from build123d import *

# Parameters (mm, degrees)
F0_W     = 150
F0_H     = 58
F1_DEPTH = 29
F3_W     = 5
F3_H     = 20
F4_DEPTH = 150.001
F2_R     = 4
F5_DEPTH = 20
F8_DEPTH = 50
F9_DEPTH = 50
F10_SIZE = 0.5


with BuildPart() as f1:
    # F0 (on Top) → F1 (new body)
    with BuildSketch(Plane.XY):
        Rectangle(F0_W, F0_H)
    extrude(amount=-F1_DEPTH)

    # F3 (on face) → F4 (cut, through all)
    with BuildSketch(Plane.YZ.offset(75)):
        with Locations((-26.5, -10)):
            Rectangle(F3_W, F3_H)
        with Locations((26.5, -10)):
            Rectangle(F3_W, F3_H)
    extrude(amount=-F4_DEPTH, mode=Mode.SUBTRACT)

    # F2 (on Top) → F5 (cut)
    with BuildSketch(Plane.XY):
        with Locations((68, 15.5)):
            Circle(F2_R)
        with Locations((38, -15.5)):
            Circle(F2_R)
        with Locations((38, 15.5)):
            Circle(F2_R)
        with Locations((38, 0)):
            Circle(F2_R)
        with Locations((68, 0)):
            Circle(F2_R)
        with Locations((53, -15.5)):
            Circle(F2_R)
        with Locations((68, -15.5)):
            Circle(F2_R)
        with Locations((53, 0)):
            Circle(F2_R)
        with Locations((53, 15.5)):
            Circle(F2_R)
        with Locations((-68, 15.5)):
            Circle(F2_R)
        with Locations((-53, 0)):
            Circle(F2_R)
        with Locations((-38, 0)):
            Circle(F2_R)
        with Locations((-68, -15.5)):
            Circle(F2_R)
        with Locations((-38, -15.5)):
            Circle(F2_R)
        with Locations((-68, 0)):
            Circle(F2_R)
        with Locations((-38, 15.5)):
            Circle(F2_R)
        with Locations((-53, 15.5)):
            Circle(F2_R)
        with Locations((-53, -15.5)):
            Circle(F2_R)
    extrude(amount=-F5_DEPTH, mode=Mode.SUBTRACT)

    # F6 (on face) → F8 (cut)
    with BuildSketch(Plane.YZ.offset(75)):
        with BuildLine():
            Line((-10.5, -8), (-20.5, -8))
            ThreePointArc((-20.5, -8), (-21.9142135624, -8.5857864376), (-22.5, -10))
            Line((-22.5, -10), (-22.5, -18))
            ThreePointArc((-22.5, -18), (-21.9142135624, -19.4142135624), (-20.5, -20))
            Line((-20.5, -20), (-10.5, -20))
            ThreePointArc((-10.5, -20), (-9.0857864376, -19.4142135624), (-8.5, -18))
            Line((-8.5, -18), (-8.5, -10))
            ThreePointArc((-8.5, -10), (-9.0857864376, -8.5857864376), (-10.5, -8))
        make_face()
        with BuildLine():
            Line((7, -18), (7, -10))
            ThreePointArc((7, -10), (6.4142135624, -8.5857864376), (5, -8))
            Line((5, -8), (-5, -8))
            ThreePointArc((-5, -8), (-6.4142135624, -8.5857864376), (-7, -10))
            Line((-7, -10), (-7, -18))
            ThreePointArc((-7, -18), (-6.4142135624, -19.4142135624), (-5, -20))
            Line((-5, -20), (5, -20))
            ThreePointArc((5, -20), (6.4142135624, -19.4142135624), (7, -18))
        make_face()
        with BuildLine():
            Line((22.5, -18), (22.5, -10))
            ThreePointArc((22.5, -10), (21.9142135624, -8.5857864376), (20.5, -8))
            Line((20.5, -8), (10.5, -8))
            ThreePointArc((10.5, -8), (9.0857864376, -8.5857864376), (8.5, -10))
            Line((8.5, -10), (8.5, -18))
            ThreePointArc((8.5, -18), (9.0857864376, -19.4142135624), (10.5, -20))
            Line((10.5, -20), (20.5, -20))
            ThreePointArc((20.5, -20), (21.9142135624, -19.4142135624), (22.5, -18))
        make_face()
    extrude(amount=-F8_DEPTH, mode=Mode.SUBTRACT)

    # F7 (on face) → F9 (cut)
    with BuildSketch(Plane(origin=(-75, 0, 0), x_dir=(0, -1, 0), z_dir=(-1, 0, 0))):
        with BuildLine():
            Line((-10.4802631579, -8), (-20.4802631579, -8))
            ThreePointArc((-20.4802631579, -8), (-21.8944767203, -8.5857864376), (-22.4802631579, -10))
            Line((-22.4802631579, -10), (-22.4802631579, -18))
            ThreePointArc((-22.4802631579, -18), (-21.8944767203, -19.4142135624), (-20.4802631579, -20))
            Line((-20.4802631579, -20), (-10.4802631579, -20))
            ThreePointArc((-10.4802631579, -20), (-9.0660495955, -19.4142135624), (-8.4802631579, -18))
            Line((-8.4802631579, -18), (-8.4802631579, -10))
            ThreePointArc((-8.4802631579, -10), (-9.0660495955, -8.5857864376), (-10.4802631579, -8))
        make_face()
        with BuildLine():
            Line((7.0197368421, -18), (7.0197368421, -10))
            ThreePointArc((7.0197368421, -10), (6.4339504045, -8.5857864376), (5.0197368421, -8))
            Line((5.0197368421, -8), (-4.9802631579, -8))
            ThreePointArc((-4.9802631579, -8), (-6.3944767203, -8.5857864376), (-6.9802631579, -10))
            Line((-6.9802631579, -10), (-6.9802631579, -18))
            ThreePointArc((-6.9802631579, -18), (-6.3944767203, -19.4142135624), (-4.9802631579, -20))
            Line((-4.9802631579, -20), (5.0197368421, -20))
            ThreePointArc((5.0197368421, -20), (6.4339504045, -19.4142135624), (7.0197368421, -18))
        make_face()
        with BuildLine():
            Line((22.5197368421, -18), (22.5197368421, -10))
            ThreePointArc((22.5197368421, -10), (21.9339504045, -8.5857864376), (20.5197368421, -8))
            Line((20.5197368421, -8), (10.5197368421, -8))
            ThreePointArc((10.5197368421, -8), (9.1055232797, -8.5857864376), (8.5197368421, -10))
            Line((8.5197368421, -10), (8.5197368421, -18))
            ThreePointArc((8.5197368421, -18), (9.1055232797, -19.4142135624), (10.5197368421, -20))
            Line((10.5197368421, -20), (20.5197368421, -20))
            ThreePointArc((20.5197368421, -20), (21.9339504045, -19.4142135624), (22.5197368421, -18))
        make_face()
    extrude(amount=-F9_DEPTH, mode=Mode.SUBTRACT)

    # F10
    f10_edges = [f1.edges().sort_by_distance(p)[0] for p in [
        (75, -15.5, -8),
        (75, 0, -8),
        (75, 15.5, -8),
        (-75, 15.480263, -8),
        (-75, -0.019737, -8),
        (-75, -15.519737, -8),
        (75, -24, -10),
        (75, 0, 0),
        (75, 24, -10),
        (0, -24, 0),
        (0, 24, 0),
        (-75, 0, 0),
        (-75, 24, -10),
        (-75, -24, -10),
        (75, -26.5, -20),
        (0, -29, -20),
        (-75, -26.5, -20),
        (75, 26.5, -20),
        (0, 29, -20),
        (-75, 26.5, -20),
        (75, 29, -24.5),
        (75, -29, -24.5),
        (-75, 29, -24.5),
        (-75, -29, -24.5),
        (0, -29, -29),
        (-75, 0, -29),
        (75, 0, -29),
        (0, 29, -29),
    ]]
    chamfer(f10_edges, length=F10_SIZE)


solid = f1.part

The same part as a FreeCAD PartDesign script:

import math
import FreeCAD as App
import Part
import Sketcher
from FreeCAD import Vector


def edges_at(feature, points):
    """Names of the edges that pass closest to the given points."""
    edges = feature.Shape.Edges
    near = lambda p: min(range(len(edges)), key=lambda i: edges[i].distToShape(Part.Vertex(*p))[0])
    return sorted({f"Edge{near(p) + 1}" for p in points})


def add_polygon(sketch, points):
    """Adds a closed chain of lines whose ends are joined by coincident constraints."""
    first, n = sketch.GeometryCount, len(points)
    for a, b in zip(points, points[1:] + points[:1]):
        sketch.addGeometry(Part.LineSegment(App.Vector(*a, 0), App.Vector(*b, 0)), False)
    for i in range(n):
        sketch.addConstraint(Sketcher.Constraint("Coincident", first + i, 2, first + (i + 1) % n, 1))

doc = App.newDocument("Part")
params = doc.addObject("Spreadsheet::Sheet", "Params")
for row, (alias, value) in enumerate([
    ("sketch1_width", "150 mm"),
    ("sketch1_height", "58 mm"),
    ("pad1_length", "29 mm"),
    ("sketch2_width", "5 mm"),
    ("sketch2_height", "20 mm"),
    ("sketch3_diameter", "8 mm"),
    ("pocket2_length", "20 mm"),
    ("sketch4_radius", "2 mm"),
    ("sketch4_width", "10 mm"),
    ("sketch4_height", "8 mm"),
    ("pocket3_length", "50 mm"),
    ("sketch5_radius", "2 mm"),
    ("sketch5_width", "10 mm"),
    ("sketch5_height", "8 mm"),
    ("pocket4_length", "50 mm"),
    ("chamfer_size", "0.5 mm"),
], start=1):
    params.set(f"A{row}", alias)
    params.set(f"B{row}", "=" + value)
    params.setAlias(f"B{row}", alias)

body = doc.addObject("PartDesign::Body", "Body")

# Sketch on XY plane
sketch1 = body.newObject("Sketcher::SketchObject", "Sketch")
sketch1.AttachmentSupport = (doc.getObject("XY_Plane"), [""])
sketch1.MapMode = "FlatFace"
add_polygon(sketch1, [(-75, 29), (-75, -29), (75, -29), (75, 29)])  # lines 0-3
sketch1.addConstraint(Sketcher.Constraint("Vertical", 0))
sketch1.addConstraint(Sketcher.Constraint("Horizontal", 1))
sketch1.addConstraint(Sketcher.Constraint("Vertical", 2))
sketch1.addConstraint(Sketcher.Constraint("Horizontal", 3))
sketch1.addConstraint(Sketcher.Constraint("Symmetric", 0, 2, 2, 2, -1, 1))
sketch1.addConstraint(Sketcher.Constraint("DistanceX", 1, 1, 1, 2, 150.0))
sketch1.addConstraint(Sketcher.Constraint("DistanceY", 0, 2, 0, 1, 58.0))
sketch1.setExpression("Constraints[9]", "Params.sketch1_width")
sketch1.setExpression("Constraints[10]", "Params.sketch1_height")
pad1 = body.newObject("PartDesign::Pad", "Pad")
pad1.Profile = sketch1
pad1.setExpression("Length", "Params.pad1_length")
pad1.Reversed = True

# Sketch on YZ plane
sketch2 = body.newObject("Sketcher::SketchObject", "Sketch001")
sketch2.AttachmentSupport = (doc.getObject("YZ_Plane"), [""])
sketch2.MapMode = "FlatFace"
sketch2.AttachmentOffset = App.Placement(Vector(0, 0, 75), App.Rotation())
add_polygon(sketch2, [(-29, 0), (-29, -20), (-24, -20), (-24, 0)])  # lines 0-3
add_polygon(sketch2, [(24, 0), (24, -20), (29, -20), (29, 0)])  # lines 4-7
sketch2.addConstraint(Sketcher.Constraint("Vertical", 0))
sketch2.addConstraint(Sketcher.Constraint("Horizontal", 1))
sketch2.addConstraint(Sketcher.Constraint("Vertical", 2))
sketch2.addConstraint(Sketcher.Constraint("Horizontal", 3))
sketch2.addConstraint(Sketcher.Constraint("Vertical", 4))
sketch2.addConstraint(Sketcher.Constraint("Horizontal", 5))
sketch2.addConstraint(Sketcher.Constraint("Vertical", 6))
sketch2.addConstraint(Sketcher.Constraint("Horizontal", 7))
sketch2.addConstraint(Sketcher.Constraint("Symmetric", 3, 2, 6, 2, -1, 1))
sketch2.addConstraint(Sketcher.Constraint("Symmetric", 1, 2, 4, 2, -2))
sketch2.addConstraint(Sketcher.Constraint("PointOnObject", 2, 2, -1))
sketch2.addConstraint(Sketcher.Constraint("DistanceX", 1, 1, 1, 2, 5.0))
sketch2.addConstraint(Sketcher.Constraint("DistanceY", 0, 2, 0, 1, 20.0))
sketch2.addConstraint(Sketcher.Constraint("DistanceX", 0, 2, -1, 1, 29.0))
sketch2.setExpression("Constraints[19]", "Params.sketch2_width")
sketch2.setExpression("Constraints[20]", "Params.sketch2_height")
pocket1 = body.newObject("PartDesign::Pocket", "Pocket")
pocket1.Profile = sketch2
pocket1.Type = "ThroughAll"

# Sketch on XY plane
sketch3 = body.newObject("Sketcher::SketchObject", "Sketch002")
sketch3.AttachmentSupport = (doc.getObject("XY_Plane"), [""])
sketch3.MapMode = "FlatFace"
sketch3.addGeometry(Part.Circle(Vector(68, 15.5, 0), Vector(0, 0, 1), 4), False)
sketch3.addGeometry(Part.Circle(Vector(38, -15.5, 0), Vector(0, 0, 1), 4), False)
sketch3.addGeometry(Part.Circle(Vector(38, 15.5, 0), Vector(0, 0, 1), 4), False)
sketch3.addGeometry(Part.Circle(Vector(38, 0, 0), Vector(0, 0, 1), 4), False)
sketch3.addGeometry(Part.Circle(Vector(68, 0, 0), Vector(0, 0, 1), 4), False)
sketch3.addGeometry(Part.Circle(Vector(53, -15.5, 0), Vector(0, 0, 1), 4), False)
sketch3.addGeometry(Part.Circle(Vector(68, -15.5, 0), Vector(0, 0, 1), 4), False)
sketch3.addGeometry(Part.Circle(Vector(53, 0, 0), Vector(0, 0, 1), 4), False)
sketch3.addGeometry(Part.Circle(Vector(53, 15.5, 0), Vector(0, 0, 1), 4), False)
sketch3.addGeometry(Part.Circle(Vector(-68, 15.5, 0), Vector(0, 0, 1), 4), False)
sketch3.addGeometry(Part.Circle(Vector(-53, 0, 0), Vector(0, 0, 1), 4), False)
sketch3.addGeometry(Part.Circle(Vector(-38, 0, 0), Vector(0, 0, 1), 4), False)
sketch3.addGeometry(Part.Circle(Vector(-68, -15.5, 0), Vector(0, 0, 1), 4), False)
sketch3.addGeometry(Part.Circle(Vector(-38, -15.5, 0), Vector(0, 0, 1), 4), False)
sketch3.addGeometry(Part.Circle(Vector(-68, 0, 0), Vector(0, 0, 1), 4), False)
sketch3.addGeometry(Part.Circle(Vector(-38, 15.5, 0), Vector(0, 0, 1), 4), False)
sketch3.addGeometry(Part.Circle(Vector(-53, 15.5, 0), Vector(0, 0, 1), 4), False)
sketch3.addGeometry(Part.Circle(Vector(-53, -15.5, 0), Vector(0, 0, 1), 4), False)
sketch3.addConstraint(Sketcher.Constraint("Equal", 0, 1))
sketch3.addConstraint(Sketcher.Constraint("Equal", 1, 2))
sketch3.addConstraint(Sketcher.Constraint("Equal", 2, 3))
sketch3.addConstraint(Sketcher.Constraint("Equal", 3, 4))
sketch3.addConstraint(Sketcher.Constraint("Equal", 4, 5))
sketch3.addConstraint(Sketcher.Constraint("Equal", 5, 6))
sketch3.addConstraint(Sketcher.Constraint("Equal", 6, 7))
sketch3.addConstraint(Sketcher.Constraint("Equal", 7, 8))
sketch3.addConstraint(Sketcher.Constraint("Equal", 8, 9))
sketch3.addConstraint(Sketcher.Constraint("Equal", 9, 10))
sketch3.addConstraint(Sketcher.Constraint("Equal", 10, 11))
sketch3.addConstraint(Sketcher.Constraint("Equal", 11, 12))
sketch3.addConstraint(Sketcher.Constraint("Equal", 12, 13))
sketch3.addConstraint(Sketcher.Constraint("Equal", 13, 14))
sketch3.addConstraint(Sketcher.Constraint("Equal", 14, 15))
sketch3.addConstraint(Sketcher.Constraint("Equal", 15, 16))
sketch3.addConstraint(Sketcher.Constraint("Equal", 16, 17))
sketch3.addConstraint(Sketcher.Constraint("Symmetric", 6, 3, 9, 3, -1, 1))
sketch3.addConstraint(Sketcher.Constraint("Symmetric", 7, 3, 10, 3, -1, 1))
sketch3.addConstraint(Sketcher.Constraint("Symmetric", 3, 3, 11, 3, -1, 1))
sketch3.addConstraint(Sketcher.Constraint("Symmetric", 0, 3, 12, 3, -1, 1))
sketch3.addConstraint(Sketcher.Constraint("Symmetric", 2, 3, 13, 3, -1, 1))
sketch3.addConstraint(Sketcher.Constraint("Symmetric", 4, 3, 14, 3, -1, 1))
sketch3.addConstraint(Sketcher.Constraint("Symmetric", 1, 3, 15, 3, -1, 1))
sketch3.addConstraint(Sketcher.Constraint("Symmetric", 5, 3, 16, 3, -1, 1))
sketch3.addConstraint(Sketcher.Constraint("Symmetric", 8, 3, 17, 3, -1, 1))
sketch3.addConstraint(Sketcher.Constraint("Symmetric", 0, 3, 9, 3, -2))
sketch3.addConstraint(Sketcher.Constraint("Symmetric", 1, 3, 13, 3, -2))
sketch3.addConstraint(Sketcher.Constraint("Symmetric", 8, 3, 16, 3, -2))
sketch3.addConstraint(Sketcher.Constraint("PointOnObject", 3, 3, -1))
sketch3.addConstraint(Sketcher.Constraint("PointOnObject", 4, 3, -1))
sketch3.addConstraint(Sketcher.Constraint("PointOnObject", 7, 3, -1))
sketch3.addConstraint(Sketcher.Constraint("Horizontal", 0, 3, 2, 3))
sketch3.addConstraint(Sketcher.Constraint("Horizontal", 1, 3, 5, 3))
sketch3.addConstraint(Sketcher.Constraint("Vertical", 2, 3, 3, 3))
sketch3.addConstraint(Sketcher.Constraint("Vertical", 0, 3, 4, 3))
sketch3.addConstraint(Sketcher.Constraint("Vertical", 5, 3, 7, 3))
sketch3.addConstraint(Sketcher.Constraint("Diameter", 0, 8.0))
sketch3.addConstraint(Sketcher.Constraint("DistanceX", -1, 1, 0, 3, 68.0))
sketch3.addConstraint(Sketcher.Constraint("DistanceX", -1, 1, 1, 3, 38.0))
sketch3.addConstraint(Sketcher.Constraint("DistanceX", -1, 1, 5, 3, 53.0))
sketch3.addConstraint(Sketcher.Constraint("DistanceY", 1, 3, 0, 3, 31.0))
sketch3.setExpression("Constraints[37]", "Params.sketch3_diameter")
pocket2 = body.newObject("PartDesign::Pocket", "Pocket001")
pocket2.Profile = sketch3
pocket2.setExpression("Length", "Params.pocket2_length")

# Sketch on YZ plane
sketch4 = body.newObject("Sketcher::SketchObject", "Sketch003")
sketch4.AttachmentSupport = (doc.getObject("YZ_Plane"), [""])
sketch4.MapMode = "FlatFace"
sketch4.AttachmentOffset = App.Placement(Vector(0, 0, 75), App.Rotation())
sketch4.addGeometry(Part.LineSegment(Vector(-10.5, -8, 0), Vector(-20.5, -8, 0)), False)
sketch4.addGeometry(Part.ArcOfCircle(Part.Circle(Vector(-20.5, -10, 0), Vector(0, 0, 1), 2), math.radians(90), math.radians(180)), False)
sketch4.addGeometry(Part.LineSegment(Vector(-22.5, -10, 0), Vector(-22.5, -18, 0)), False)
sketch4.addGeometry(Part.ArcOfCircle(Part.Circle(Vector(-20.5, -18, 0), Vector(0, 0, 1), 2), math.radians(180), math.radians(270)), False)
sketch4.addGeometry(Part.LineSegment(Vector(-20.5, -20, 0), Vector(-10.5, -20, 0)), False)
sketch4.addGeometry(Part.ArcOfCircle(Part.Circle(Vector(-10.5, -18, 0), Vector(0, 0, 1), 2), math.radians(-90), math.radians(0)), False)
sketch4.addGeometry(Part.LineSegment(Vector(-8.5, -18, 0), Vector(-8.5, -10, 0)), False)
sketch4.addGeometry(Part.ArcOfCircle(Part.Circle(Vector(-10.5, -10, 0), Vector(0, 0, 1), 2), math.radians(0), math.radians(90)), False)
sketch4.addGeometry(Part.LineSegment(Vector(7, -18, 0), Vector(7, -10, 0)), False)
sketch4.addGeometry(Part.ArcOfCircle(Part.Circle(Vector(5, -10, 0), Vector(0, 0, 1), 2), math.radians(0), math.radians(90)), False)
sketch4.addGeometry(Part.LineSegment(Vector(5, -8, 0), Vector(-5, -8, 0)), False)
sketch4.addGeometry(Part.ArcOfCircle(Part.Circle(Vector(-5, -10, 0), Vector(0, 0, 1), 2), math.radians(90), math.radians(180)), False)
sketch4.addGeometry(Part.LineSegment(Vector(-7, -10, 0), Vector(-7, -18, 0)), False)
sketch4.addGeometry(Part.ArcOfCircle(Part.Circle(Vector(-5, -18, 0), Vector(0, 0, 1), 2), math.radians(180), math.radians(270)), False)
sketch4.addGeometry(Part.LineSegment(Vector(-5, -20, 0), Vector(5, -20, 0)), False)
sketch4.addGeometry(Part.ArcOfCircle(Part.Circle(Vector(5, -18, 0), Vector(0, 0, 1), 2), math.radians(-90), math.radians(0)), False)
sketch4.addGeometry(Part.LineSegment(Vector(22.5, -18, 0), Vector(22.5, -10, 0)), False)
sketch4.addGeometry(Part.ArcOfCircle(Part.Circle(Vector(20.5, -10, 0), Vector(0, 0, 1), 2), math.radians(0), math.radians(90)), False)
sketch4.addGeometry(Part.LineSegment(Vector(20.5, -8, 0), Vector(10.5, -8, 0)), False)
sketch4.addGeometry(Part.ArcOfCircle(Part.Circle(Vector(10.5, -10, 0), Vector(0, 0, 1), 2), math.radians(90), math.radians(180)), False)
sketch4.addGeometry(Part.LineSegment(Vector(8.5, -10, 0), Vector(8.5, -18, 0)), False)
sketch4.addGeometry(Part.ArcOfCircle(Part.Circle(Vector(10.5, -18, 0), Vector(0, 0, 1), 2), math.radians(180), math.radians(270)), False)
sketch4.addGeometry(Part.LineSegment(Vector(10.5, -20, 0), Vector(20.5, -20, 0)), False)
sketch4.addGeometry(Part.ArcOfCircle(Part.Circle(Vector(20.5, -18, 0), Vector(0, 0, 1), 2), math.radians(-90), math.radians(0)), False)
sketch4.addConstraint(Sketcher.Constraint("Tangent", 0, 2, 1, 1))
sketch4.addConstraint(Sketcher.Constraint("Tangent", 1, 2, 2, 1))
sketch4.addConstraint(Sketcher.Constraint("Tangent", 2, 2, 3, 1))
sketch4.addConstraint(Sketcher.Constraint("Tangent", 3, 2, 4, 1))
sketch4.addConstraint(Sketcher.Constraint("Tangent", 4, 2, 5, 1))
sketch4.addConstraint(Sketcher.Constraint("Tangent", 5, 2, 6, 1))
sketch4.addConstraint(Sketcher.Constraint("Tangent", 6, 2, 7, 1))
sketch4.addConstraint(Sketcher.Constraint("Tangent", 7, 2, 0, 1))
sketch4.addConstraint(Sketcher.Constraint("Tangent", 8, 2, 9, 1))
sketch4.addConstraint(Sketcher.Constraint("Tangent", 9, 2, 10, 1))
sketch4.addConstraint(Sketcher.Constraint("Tangent", 10, 2, 11, 1))
sketch4.addConstraint(Sketcher.Constraint("Tangent", 11, 2, 12, 1))
sketch4.addConstraint(Sketcher.Constraint("Tangent", 12, 2, 13, 1))
sketch4.addConstraint(Sketcher.Constraint("Tangent", 13, 2, 14, 1))
sketch4.addConstraint(Sketcher.Constraint("Tangent", 14, 2, 15, 1))
sketch4.addConstraint(Sketcher.Constraint("Tangent", 15, 2, 8, 1))
sketch4.addConstraint(Sketcher.Constraint("Tangent", 16, 2, 17, 1))
sketch4.addConstraint(Sketcher.Constraint("Tangent", 17, 2, 18, 1))
sketch4.addConstraint(Sketcher.Constraint("Tangent", 18, 2, 19, 1))
sketch4.addConstraint(Sketcher.Constraint("Tangent", 19, 2, 20, 1))
sketch4.addConstraint(Sketcher.Constraint("Tangent", 20, 2, 21, 1))
sketch4.addConstraint(Sketcher.Constraint("Tangent", 21, 2, 22, 1))
sketch4.addConstraint(Sketcher.Constraint("Tangent", 22, 2, 23, 1))
sketch4.addConstraint(Sketcher.Constraint("Tangent", 23, 2, 16, 1))
sketch4.addConstraint(Sketcher.Constraint("Horizontal", 0))
sketch4.addConstraint(Sketcher.Constraint("Vertical", 2))
sketch4.addConstraint(Sketcher.Constraint("Horizontal", 4))
sketch4.addConstraint(Sketcher.Constraint("Vertical", 6))
sketch4.addConstraint(Sketcher.Constraint("Vertical", 8))
sketch4.addConstraint(Sketcher.Constraint("Horizontal", 10))
sketch4.addConstraint(Sketcher.Constraint("Vertical", 12))
sketch4.addConstraint(Sketcher.Constraint("Horizontal", 14))
sketch4.addConstraint(Sketcher.Constraint("Vertical", 16))
sketch4.addConstraint(Sketcher.Constraint("Horizontal", 18))
sketch4.addConstraint(Sketcher.Constraint("Vertical", 20))
sketch4.addConstraint(Sketcher.Constraint("Horizontal", 22))
sketch4.addConstraint(Sketcher.Constraint("Equal", 1, 3))
sketch4.addConstraint(Sketcher.Constraint("Equal", 3, 5))
sketch4.addConstraint(Sketcher.Constraint("Equal", 5, 7))
sketch4.addConstraint(Sketcher.Constraint("Equal", 7, 9))
sketch4.addConstraint(Sketcher.Constraint("Equal", 9, 11))
sketch4.addConstraint(Sketcher.Constraint("Equal", 11, 13))
sketch4.addConstraint(Sketcher.Constraint("Equal", 13, 15))
sketch4.addConstraint(Sketcher.Constraint("Equal", 15, 17))
sketch4.addConstraint(Sketcher.Constraint("Equal", 17, 19))
sketch4.addConstraint(Sketcher.Constraint("Equal", 19, 21))
sketch4.addConstraint(Sketcher.Constraint("Equal", 21, 23))
sketch4.addConstraint(Sketcher.Constraint("Symmetric", 1, 3, 17, 3, -2))
sketch4.addConstraint(Sketcher.Constraint("Symmetric", 5, 3, 21, 3, -2))
sketch4.addConstraint(Sketcher.Constraint("Horizontal", 7, 3, 9, 3))
sketch4.addConstraint(Sketcher.Constraint("Horizontal", 5, 3, 13, 3))
sketch4.addConstraint(Sketcher.Constraint("Equal", 4, 10))
sketch4.addConstraint(Sketcher.Constraint("Radius", 1, 2.0))
sketch4.addConstraint(Sketcher.Constraint("DistanceX", 0, 2, 0, 1, 10.0))
sketch4.addConstraint(Sketcher.Constraint("DistanceY", 2, 2, 2, 1, 8.0))
sketch4.addConstraint(Sketcher.Constraint("DistanceY", 1, 3, -1, 1, 10.0))
sketch4.addConstraint(Sketcher.Constraint("DistanceX", -1, 1, 9, 3, 5.0))
sketch4.addConstraint(Sketcher.Constraint("DistanceX", 7, 3, 17, 3, 31.0))
sketch4.setExpression("Constraints[52]", "Params.sketch4_radius")
sketch4.setExpression("Constraints[53]", "Params.sketch4_width")
sketch4.setExpression("Constraints[54]", "Params.sketch4_height")
pocket3 = body.newObject("PartDesign::Pocket", "Pocket002")
pocket3.Profile = sketch4
pocket3.setExpression("Length", "Params.pocket3_length")

# Sketch on YZ plane
sketch5 = body.newObject("Sketcher::SketchObject", "Sketch004")
sketch5.AttachmentSupport = (doc.getObject("YZ_Plane"), [""])
sketch5.MapMode = "FlatFace"
sketch5.AttachmentOffset = App.Placement(Vector(0, 0, -75), App.Rotation())
sketch5.addGeometry(Part.LineSegment(Vector(10.480263, -8, 0), Vector(20.480263, -8, 0)), False)
sketch5.addGeometry(Part.ArcOfCircle(Part.Circle(Vector(20.480263, -10, 0), Vector(0, 0, 1), 2), math.radians(0), math.radians(90)), False)
sketch5.addGeometry(Part.LineSegment(Vector(22.480263, -10, 0), Vector(22.480263, -18, 0)), False)
sketch5.addGeometry(Part.ArcOfCircle(Part.Circle(Vector(20.480263, -18, 0), Vector(0, 0, 1), 2), math.radians(-90), math.radians(0)), False)
sketch5.addGeometry(Part.LineSegment(Vector(20.480263, -20, 0), Vector(10.480263, -20, 0)), False)
sketch5.addGeometry(Part.ArcOfCircle(Part.Circle(Vector(10.480263, -18, 0), Vector(0, 0, 1), 2), math.radians(180), math.radians(270)), False)
sketch5.addGeometry(Part.LineSegment(Vector(8.480263, -18, 0), Vector(8.480263, -10, 0)), False)
sketch5.addGeometry(Part.ArcOfCircle(Part.Circle(Vector(10.480263, -10, 0), Vector(0, 0, 1), 2), math.radians(90), math.radians(180)), False)
sketch5.addGeometry(Part.LineSegment(Vector(-7.019737, -18, 0), Vector(-7.019737, -10, 0)), False)
sketch5.addGeometry(Part.ArcOfCircle(Part.Circle(Vector(-5.019737, -10, 0), Vector(0, 0, 1), 2), math.radians(90), math.radians(180)), False)
sketch5.addGeometry(Part.LineSegment(Vector(-5.019737, -8, 0), Vector(4.980263, -8, 0)), False)
sketch5.addGeometry(Part.ArcOfCircle(Part.Circle(Vector(4.980263, -10, 0), Vector(0, 0, 1), 2), math.radians(0), math.radians(90)), False)
sketch5.addGeometry(Part.LineSegment(Vector(6.980263, -10, 0), Vector(6.980263, -18, 0)), False)
sketch5.addGeometry(Part.ArcOfCircle(Part.Circle(Vector(4.980263, -18, 0), Vector(0, 0, 1), 2), math.radians(-90), math.radians(0)), False)
sketch5.addGeometry(Part.LineSegment(Vector(4.980263, -20, 0), Vector(-5.019737, -20, 0)), False)
sketch5.addGeometry(Part.ArcOfCircle(Part.Circle(Vector(-5.019737, -18, 0), Vector(0, 0, 1), 2), math.radians(180), math.radians(270)), False)
sketch5.addGeometry(Part.LineSegment(Vector(-22.519737, -18, 0), Vector(-22.519737, -10, 0)), False)
sketch5.addGeometry(Part.ArcOfCircle(Part.Circle(Vector(-20.519737, -10, 0), Vector(0, 0, 1), 2), math.radians(90), math.radians(180)), False)
sketch5.addGeometry(Part.LineSegment(Vector(-20.519737, -8, 0), Vector(-10.519737, -8, 0)), False)
sketch5.addGeometry(Part.ArcOfCircle(Part.Circle(Vector(-10.519737, -10, 0), Vector(0, 0, 1), 2), math.radians(0), math.radians(90)), False)
sketch5.addGeometry(Part.LineSegment(Vector(-8.519737, -10, 0), Vector(-8.519737, -18, 0)), False)
sketch5.addGeometry(Part.ArcOfCircle(Part.Circle(Vector(-10.519737, -18, 0), Vector(0, 0, 1), 2), math.radians(-90), math.radians(0)), False)
sketch5.addGeometry(Part.LineSegment(Vector(-10.519737, -20, 0), Vector(-20.519737, -20, 0)), False)
sketch5.addGeometry(Part.ArcOfCircle(Part.Circle(Vector(-20.519737, -18, 0), Vector(0, 0, 1), 2), math.radians(180), math.radians(270)), False)
sketch5.addConstraint(Sketcher.Constraint("Tangent", 0, 2, 1, 2))
sketch5.addConstraint(Sketcher.Constraint("Tangent", 1, 1, 2, 1))
sketch5.addConstraint(Sketcher.Constraint("Tangent", 2, 2, 3, 2))
sketch5.addConstraint(Sketcher.Constraint("Tangent", 3, 1, 4, 1))
sketch5.addConstraint(Sketcher.Constraint("Tangent", 4, 2, 5, 2))
sketch5.addConstraint(Sketcher.Constraint("Tangent", 5, 1, 6, 1))
sketch5.addConstraint(Sketcher.Constraint("Tangent", 6, 2, 7, 2))
sketch5.addConstraint(Sketcher.Constraint("Tangent", 7, 1, 0, 1))
sketch5.addConstraint(Sketcher.Constraint("Tangent", 8, 2, 9, 2))
sketch5.addConstraint(Sketcher.Constraint("Tangent", 9, 1, 10, 1))
sketch5.addConstraint(Sketcher.Constraint("Tangent", 10, 2, 11, 2))
sketch5.addConstraint(Sketcher.Constraint("Tangent", 11, 1, 12, 1))
sketch5.addConstraint(Sketcher.Constraint("Tangent", 12, 2, 13, 2))
sketch5.addConstraint(Sketcher.Constraint("Tangent", 13, 1, 14, 1))
sketch5.addConstraint(Sketcher.Constraint("Tangent", 14, 2, 15, 2))
sketch5.addConstraint(Sketcher.Constraint("Tangent", 15, 1, 8, 1))
sketch5.addConstraint(Sketcher.Constraint("Tangent", 16, 2, 17, 2))
sketch5.addConstraint(Sketcher.Constraint("Tangent", 17, 1, 18, 1))
sketch5.addConstraint(Sketcher.Constraint("Tangent", 18, 2, 19, 2))
sketch5.addConstraint(Sketcher.Constraint("Tangent", 19, 1, 20, 1))
sketch5.addConstraint(Sketcher.Constraint("Tangent", 20, 2, 21, 2))
sketch5.addConstraint(Sketcher.Constraint("Tangent", 21, 1, 22, 1))
sketch5.addConstraint(Sketcher.Constraint("Tangent", 22, 2, 23, 2))
sketch5.addConstraint(Sketcher.Constraint("Tangent", 23, 1, 16, 1))
sketch5.addConstraint(Sketcher.Constraint("Horizontal", 0))
sketch5.addConstraint(Sketcher.Constraint("Vertical", 2))
sketch5.addConstraint(Sketcher.Constraint("Horizontal", 4))
sketch5.addConstraint(Sketcher.Constraint("Vertical", 6))
sketch5.addConstraint(Sketcher.Constraint("Vertical", 8))
sketch5.addConstraint(Sketcher.Constraint("Horizontal", 10))
sketch5.addConstraint(Sketcher.Constraint("Vertical", 12))
sketch5.addConstraint(Sketcher.Constraint("Horizontal", 14))
sketch5.addConstraint(Sketcher.Constraint("Vertical", 16))
sketch5.addConstraint(Sketcher.Constraint("Horizontal", 18))
sketch5.addConstraint(Sketcher.Constraint("Vertical", 20))
sketch5.addConstraint(Sketcher.Constraint("Horizontal", 22))
sketch5.addConstraint(Sketcher.Constraint("Equal", 1, 3))
sketch5.addConstraint(Sketcher.Constraint("Equal", 3, 5))
sketch5.addConstraint(Sketcher.Constraint("Equal", 5, 7))
sketch5.addConstraint(Sketcher.Constraint("Equal", 7, 9))
sketch5.addConstraint(Sketcher.Constraint("Equal", 9, 11))
sketch5.addConstraint(Sketcher.Constraint("Equal", 11, 13))
sketch5.addConstraint(Sketcher.Constraint("Equal", 13, 15))
sketch5.addConstraint(Sketcher.Constraint("Equal", 15, 17))
sketch5.addConstraint(Sketcher.Constraint("Equal", 17, 19))
sketch5.addConstraint(Sketcher.Constraint("Equal", 19, 21))
sketch5.addConstraint(Sketcher.Constraint("Equal", 21, 23))
sketch5.addConstraint(Sketcher.Constraint("Horizontal", 7, 3, 9, 3))
sketch5.addConstraint(Sketcher.Constraint("Horizontal", 5, 3, 13, 3))
sketch5.addConstraint(Sketcher.Constraint("Horizontal", 11, 3, 17, 3))
sketch5.addConstraint(Sketcher.Constraint("Horizontal", 15, 3, 21, 3))
sketch5.addConstraint(Sketcher.Constraint("Equal", 4, 10))
sketch5.addConstraint(Sketcher.Constraint("Equal", 14, 18))
sketch5.addConstraint(Sketcher.Constraint("Radius", 1, 2.0))
sketch5.addConstraint(Sketcher.Constraint("DistanceX", 0, 1, 0, 2, 10.0))
sketch5.addConstraint(Sketcher.Constraint("DistanceY", 2, 2, 2, 1, 8.0))
sketch5.addConstraint(Sketcher.Constraint("DistanceY", 1, 3, -1, 1, 10.0))
sketch5.addConstraint(Sketcher.Constraint("DistanceX", 17, 3, 7, 3, 31.0))
sketch5.addConstraint(Sketcher.Constraint("DistanceX", 9, 3, 7, 3, 15.5))
sketch5.addConstraint(Sketcher.Constraint("DistanceX", -1, 1, 1, 3, 20.480263))
sketch5.setExpression("Constraints[53]", "Params.sketch5_radius")
sketch5.setExpression("Constraints[54]", "Params.sketch5_width")
sketch5.setExpression("Constraints[55]", "Params.sketch5_height")
pocket4 = body.newObject("PartDesign::Pocket", "Pocket003")
pocket4.Profile = sketch5
pocket4.setExpression("Length", "Params.pocket4_length")
pocket4.Reversed = True
doc.recompute()

chamfer = body.newObject("PartDesign::Chamfer", "Chamfer")
chamfer.Base = (pocket4, edges_at(pocket4, [
    (75, -15.5, -8),
    (75, 0, -8),
    (75, 15.5, -8),
    (-75, 15.48, -8),
    (-75, -0.02, -8),
    (-75, -15.52, -8),
    (75, -24, -10),
    (75, 0, 0),
    (75, 24, -10),
    (0, -24, 0),
    (0, 24, 0),
    (-75, 0, 0),
    (-75, 24, -10),
    (-75, -24, -10),
    (75, -26.5, -20),
    (0, -29, -20),
    (-75, -26.5, -20),
    (75, 26.5, -20),
    (0, 29, -20),
    (-75, 26.5, -20),
    (75, 29, -24.5),
    (75, -29, -24.5),
    (-75, 29, -24.5),
    (-75, -29, -24.5),
    (0, -29, -29),
    (-75, 0, -29),
    (75, 0, -29),
    (0, 29, -29),
]))
chamfer.setExpression("Size", "Params.chamfer_size")

doc.recompute()
